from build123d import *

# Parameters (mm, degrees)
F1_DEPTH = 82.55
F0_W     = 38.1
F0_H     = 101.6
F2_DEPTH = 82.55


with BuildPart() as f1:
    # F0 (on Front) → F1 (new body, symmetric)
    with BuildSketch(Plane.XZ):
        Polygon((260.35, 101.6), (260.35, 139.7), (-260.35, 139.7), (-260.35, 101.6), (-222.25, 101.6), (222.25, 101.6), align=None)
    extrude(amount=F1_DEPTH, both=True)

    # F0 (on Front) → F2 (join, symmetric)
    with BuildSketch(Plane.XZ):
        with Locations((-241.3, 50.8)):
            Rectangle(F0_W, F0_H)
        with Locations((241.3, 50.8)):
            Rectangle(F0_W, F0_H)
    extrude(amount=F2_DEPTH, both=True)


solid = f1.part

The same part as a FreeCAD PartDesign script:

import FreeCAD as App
import Part
import Sketcher
Q = App.Units.Quantity


def add_polygon(sketch, points):
    """Adds a closed chain of lines whose ends are joined by coincident constraints."""
    first, n = sketch.GeometryCount, len(points)
    for a, b in zip(points, points[1:] + points[:1]):
        sketch.addGeometry(Part.LineSegment(App.Vector(*a, 0), App.Vector(*b, 0)), False)
    for i in range(n):
        sketch.addConstraint(Sketcher.Constraint("Coincident", first + i, 2, first + (i + 1) % n, 1))

doc = App.newDocument("Part")
body = doc.addObject("PartDesign::Body", "Body")

# Sketch on XZ plane
sketch1 = doc.addObject("Sketcher::SketchObject", "Sketch")
body.addObject(sketch1)
sketch1.AttachmentSupport = (doc.XZ_Plane, [""])
sketch1.MapMode = "FlatFace"
add_polygon(sketch1, [(260, 102), (260, 140), (-260, 140), (-260, 102)])  # lines 0-3
sketch1.addConstraint(Sketcher.Constraint("Vertical", 0))
sketch1.addConstraint(Sketcher.Constraint("Horizontal", 1))
sketch1.addConstraint(Sketcher.Constraint("Vertical", 2))
sketch1.addConstraint(Sketcher.Constraint("Horizontal", 3))
sketch1.addConstraint(Sketcher.Constraint("DistanceX", 1, 2, 1, 1, Q("20.5 in")))
sketch1.addConstraint(Sketcher.Constraint("DistanceY", 0, 1, 0, 2, Q("1.5 in")))
sketch1.addConstraint(Sketcher.Constraint("DistanceY", -1, 1, 2, 2, Q("4 in")))
sketch1.addConstraint(Sketcher.Constraint("DistanceX", -1, 1, 0, 2, Q("10.25 in")))
pad1 = doc.addObject("PartDesign::Pad", "Pad")
body.addObject(pad1)
pad1.Profile = sketch1
pad1.Length = Q("6.5 in")
pad1.Midplane = True

# Sketch on XZ plane
sketch2 = doc.addObject("Sketcher::SketchObject", "Sketch001")
body.addObject(sketch2)
sketch2.AttachmentSupport = (doc.XZ_Plane, [""])
sketch2.MapMode = "FlatFace"
add_polygon(sketch2, [(-260, 102), (-260, 0), (-222, 0), (-222, 102)])  # lines 0-3
add_polygon(sketch2, [(222, 102), (222, 0), (260, 0), (260, 102)])  # lines 4-7
sketch2.addConstraint(Sketcher.Constraint("Vertical", 0))
sketch2.addConstraint(Sketcher.Constraint("Horizontal", 1))
sketch2.addConstraint(Sketcher.Constraint("Vertical", 2))
sketch2.addConstraint(Sketcher.Constraint("Horizontal", 3))
sketch2.addConstraint(Sketcher.Constraint("Vertical", 4))
sketch2.addConstraint(Sketcher.Constraint("Horizontal", 5))
sketch2.addConstraint(Sketcher.Constraint("Vertical", 6))
sketch2.addConstraint(Sketcher.Constraint("Horizontal", 7))
sketch2.addConstraint(Sketcher.Constraint("Symmetric", 1, 2, 4, 2, -1, 1))
sketch2.addConstraint(Sketcher.Constraint("Symmetric", 0, 2, 5, 2, -2))
sketch2.addConstraint(Sketcher.Constraint("Horizontal", 3, 2, 6, 2))
sketch2.addConstraint(Sketcher.Constraint("DistanceY", 0, 2, 0, 1, Q("4 in")))
sketch2.addConstraint(Sketcher.Constraint("DistanceX", 1, 1, 1, 2, Q("1.5 in")))
sketch2.addConstraint(Sketcher.Constraint("DistanceX", 0, 2, 4, 2, Q("19 in")))
pad2 = doc.addObject("PartDesign::Pad", "Pad001")
body.addObject(pad2)
pad2.Profile = sketch2
pad2.Length = Q("6.5 in")
pad2.Midplane = True

doc.recompute()
